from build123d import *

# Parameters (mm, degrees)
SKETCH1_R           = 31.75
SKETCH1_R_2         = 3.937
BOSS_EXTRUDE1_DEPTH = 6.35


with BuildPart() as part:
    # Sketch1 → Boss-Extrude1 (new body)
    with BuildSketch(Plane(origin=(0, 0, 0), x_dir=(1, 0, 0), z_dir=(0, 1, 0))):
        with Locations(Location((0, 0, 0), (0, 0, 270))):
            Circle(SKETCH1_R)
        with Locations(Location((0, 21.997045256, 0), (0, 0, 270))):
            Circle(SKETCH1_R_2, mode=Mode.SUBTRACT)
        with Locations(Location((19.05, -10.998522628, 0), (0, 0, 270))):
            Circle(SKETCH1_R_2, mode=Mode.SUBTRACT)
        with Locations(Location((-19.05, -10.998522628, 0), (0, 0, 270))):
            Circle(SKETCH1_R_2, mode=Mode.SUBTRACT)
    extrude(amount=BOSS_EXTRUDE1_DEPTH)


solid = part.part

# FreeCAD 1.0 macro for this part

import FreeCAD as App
import Part
import Sketcher

V = App.Vector
Q = App.Units.Quantity

doc = App.newDocument("Part")
body = doc.addObject("PartDesign::Body", "Body")

sketch1 = doc.addObject("Sketcher::SketchObject", "Sketch")
body.addObject(sketch1)
sketch1.AttachmentSupport = (doc.XZ_Plane, [""])
sketch1.MapMode = "FlatFace"
sketch1.addGeometry([
    Part.Circle(V(0, 0, 0), V(0, 0, 1), 31.8),
    Part.Circle(V(0, -22, 0), V(0, 0, 1), 3.9),
    Part.Circle(V(-19.1, 11, 0), V(0, 0, 1), 3.9),
    Part.Circle(V(19.1, 11, 0), V(0, 0, 1), 3.9),
], False)
sketch1.addConstraint([
    Sketcher.Constraint("Coincident", 0, 3, -1, 1),
    Sketcher.Constraint("Equal", 1, 2),
    Sketcher.Constraint("Equal", 2, 3),
    Sketcher.Constraint("Symmetric", 2, 3, 3, 3, -2),
    Sketcher.Constraint("PointOnObject", 1, 3, -2),
    Sketcher.Constraint("Diameter", 0, Q("2.5 in")),
    Sketcher.Constraint("Diameter", 1, Q("0.31 in")),
    Sketcher.Constraint("DistanceX", 2, 3, 3, 3, Q("1.5 in")),
    Sketcher.Constraint("DistanceY", 1, 3, -1, 1, 21.997045),
    Sketcher.Constraint("DistanceY", -1, 1, 2, 3, 10.998523),
])
pad1 = doc.addObject("PartDesign::Pad", "Pad")
body.addObject(pad1)
pad1.Profile = sketch1
pad1.Length = Q("0.25 in")
pad1.Reversed = True

doc.recompute()
